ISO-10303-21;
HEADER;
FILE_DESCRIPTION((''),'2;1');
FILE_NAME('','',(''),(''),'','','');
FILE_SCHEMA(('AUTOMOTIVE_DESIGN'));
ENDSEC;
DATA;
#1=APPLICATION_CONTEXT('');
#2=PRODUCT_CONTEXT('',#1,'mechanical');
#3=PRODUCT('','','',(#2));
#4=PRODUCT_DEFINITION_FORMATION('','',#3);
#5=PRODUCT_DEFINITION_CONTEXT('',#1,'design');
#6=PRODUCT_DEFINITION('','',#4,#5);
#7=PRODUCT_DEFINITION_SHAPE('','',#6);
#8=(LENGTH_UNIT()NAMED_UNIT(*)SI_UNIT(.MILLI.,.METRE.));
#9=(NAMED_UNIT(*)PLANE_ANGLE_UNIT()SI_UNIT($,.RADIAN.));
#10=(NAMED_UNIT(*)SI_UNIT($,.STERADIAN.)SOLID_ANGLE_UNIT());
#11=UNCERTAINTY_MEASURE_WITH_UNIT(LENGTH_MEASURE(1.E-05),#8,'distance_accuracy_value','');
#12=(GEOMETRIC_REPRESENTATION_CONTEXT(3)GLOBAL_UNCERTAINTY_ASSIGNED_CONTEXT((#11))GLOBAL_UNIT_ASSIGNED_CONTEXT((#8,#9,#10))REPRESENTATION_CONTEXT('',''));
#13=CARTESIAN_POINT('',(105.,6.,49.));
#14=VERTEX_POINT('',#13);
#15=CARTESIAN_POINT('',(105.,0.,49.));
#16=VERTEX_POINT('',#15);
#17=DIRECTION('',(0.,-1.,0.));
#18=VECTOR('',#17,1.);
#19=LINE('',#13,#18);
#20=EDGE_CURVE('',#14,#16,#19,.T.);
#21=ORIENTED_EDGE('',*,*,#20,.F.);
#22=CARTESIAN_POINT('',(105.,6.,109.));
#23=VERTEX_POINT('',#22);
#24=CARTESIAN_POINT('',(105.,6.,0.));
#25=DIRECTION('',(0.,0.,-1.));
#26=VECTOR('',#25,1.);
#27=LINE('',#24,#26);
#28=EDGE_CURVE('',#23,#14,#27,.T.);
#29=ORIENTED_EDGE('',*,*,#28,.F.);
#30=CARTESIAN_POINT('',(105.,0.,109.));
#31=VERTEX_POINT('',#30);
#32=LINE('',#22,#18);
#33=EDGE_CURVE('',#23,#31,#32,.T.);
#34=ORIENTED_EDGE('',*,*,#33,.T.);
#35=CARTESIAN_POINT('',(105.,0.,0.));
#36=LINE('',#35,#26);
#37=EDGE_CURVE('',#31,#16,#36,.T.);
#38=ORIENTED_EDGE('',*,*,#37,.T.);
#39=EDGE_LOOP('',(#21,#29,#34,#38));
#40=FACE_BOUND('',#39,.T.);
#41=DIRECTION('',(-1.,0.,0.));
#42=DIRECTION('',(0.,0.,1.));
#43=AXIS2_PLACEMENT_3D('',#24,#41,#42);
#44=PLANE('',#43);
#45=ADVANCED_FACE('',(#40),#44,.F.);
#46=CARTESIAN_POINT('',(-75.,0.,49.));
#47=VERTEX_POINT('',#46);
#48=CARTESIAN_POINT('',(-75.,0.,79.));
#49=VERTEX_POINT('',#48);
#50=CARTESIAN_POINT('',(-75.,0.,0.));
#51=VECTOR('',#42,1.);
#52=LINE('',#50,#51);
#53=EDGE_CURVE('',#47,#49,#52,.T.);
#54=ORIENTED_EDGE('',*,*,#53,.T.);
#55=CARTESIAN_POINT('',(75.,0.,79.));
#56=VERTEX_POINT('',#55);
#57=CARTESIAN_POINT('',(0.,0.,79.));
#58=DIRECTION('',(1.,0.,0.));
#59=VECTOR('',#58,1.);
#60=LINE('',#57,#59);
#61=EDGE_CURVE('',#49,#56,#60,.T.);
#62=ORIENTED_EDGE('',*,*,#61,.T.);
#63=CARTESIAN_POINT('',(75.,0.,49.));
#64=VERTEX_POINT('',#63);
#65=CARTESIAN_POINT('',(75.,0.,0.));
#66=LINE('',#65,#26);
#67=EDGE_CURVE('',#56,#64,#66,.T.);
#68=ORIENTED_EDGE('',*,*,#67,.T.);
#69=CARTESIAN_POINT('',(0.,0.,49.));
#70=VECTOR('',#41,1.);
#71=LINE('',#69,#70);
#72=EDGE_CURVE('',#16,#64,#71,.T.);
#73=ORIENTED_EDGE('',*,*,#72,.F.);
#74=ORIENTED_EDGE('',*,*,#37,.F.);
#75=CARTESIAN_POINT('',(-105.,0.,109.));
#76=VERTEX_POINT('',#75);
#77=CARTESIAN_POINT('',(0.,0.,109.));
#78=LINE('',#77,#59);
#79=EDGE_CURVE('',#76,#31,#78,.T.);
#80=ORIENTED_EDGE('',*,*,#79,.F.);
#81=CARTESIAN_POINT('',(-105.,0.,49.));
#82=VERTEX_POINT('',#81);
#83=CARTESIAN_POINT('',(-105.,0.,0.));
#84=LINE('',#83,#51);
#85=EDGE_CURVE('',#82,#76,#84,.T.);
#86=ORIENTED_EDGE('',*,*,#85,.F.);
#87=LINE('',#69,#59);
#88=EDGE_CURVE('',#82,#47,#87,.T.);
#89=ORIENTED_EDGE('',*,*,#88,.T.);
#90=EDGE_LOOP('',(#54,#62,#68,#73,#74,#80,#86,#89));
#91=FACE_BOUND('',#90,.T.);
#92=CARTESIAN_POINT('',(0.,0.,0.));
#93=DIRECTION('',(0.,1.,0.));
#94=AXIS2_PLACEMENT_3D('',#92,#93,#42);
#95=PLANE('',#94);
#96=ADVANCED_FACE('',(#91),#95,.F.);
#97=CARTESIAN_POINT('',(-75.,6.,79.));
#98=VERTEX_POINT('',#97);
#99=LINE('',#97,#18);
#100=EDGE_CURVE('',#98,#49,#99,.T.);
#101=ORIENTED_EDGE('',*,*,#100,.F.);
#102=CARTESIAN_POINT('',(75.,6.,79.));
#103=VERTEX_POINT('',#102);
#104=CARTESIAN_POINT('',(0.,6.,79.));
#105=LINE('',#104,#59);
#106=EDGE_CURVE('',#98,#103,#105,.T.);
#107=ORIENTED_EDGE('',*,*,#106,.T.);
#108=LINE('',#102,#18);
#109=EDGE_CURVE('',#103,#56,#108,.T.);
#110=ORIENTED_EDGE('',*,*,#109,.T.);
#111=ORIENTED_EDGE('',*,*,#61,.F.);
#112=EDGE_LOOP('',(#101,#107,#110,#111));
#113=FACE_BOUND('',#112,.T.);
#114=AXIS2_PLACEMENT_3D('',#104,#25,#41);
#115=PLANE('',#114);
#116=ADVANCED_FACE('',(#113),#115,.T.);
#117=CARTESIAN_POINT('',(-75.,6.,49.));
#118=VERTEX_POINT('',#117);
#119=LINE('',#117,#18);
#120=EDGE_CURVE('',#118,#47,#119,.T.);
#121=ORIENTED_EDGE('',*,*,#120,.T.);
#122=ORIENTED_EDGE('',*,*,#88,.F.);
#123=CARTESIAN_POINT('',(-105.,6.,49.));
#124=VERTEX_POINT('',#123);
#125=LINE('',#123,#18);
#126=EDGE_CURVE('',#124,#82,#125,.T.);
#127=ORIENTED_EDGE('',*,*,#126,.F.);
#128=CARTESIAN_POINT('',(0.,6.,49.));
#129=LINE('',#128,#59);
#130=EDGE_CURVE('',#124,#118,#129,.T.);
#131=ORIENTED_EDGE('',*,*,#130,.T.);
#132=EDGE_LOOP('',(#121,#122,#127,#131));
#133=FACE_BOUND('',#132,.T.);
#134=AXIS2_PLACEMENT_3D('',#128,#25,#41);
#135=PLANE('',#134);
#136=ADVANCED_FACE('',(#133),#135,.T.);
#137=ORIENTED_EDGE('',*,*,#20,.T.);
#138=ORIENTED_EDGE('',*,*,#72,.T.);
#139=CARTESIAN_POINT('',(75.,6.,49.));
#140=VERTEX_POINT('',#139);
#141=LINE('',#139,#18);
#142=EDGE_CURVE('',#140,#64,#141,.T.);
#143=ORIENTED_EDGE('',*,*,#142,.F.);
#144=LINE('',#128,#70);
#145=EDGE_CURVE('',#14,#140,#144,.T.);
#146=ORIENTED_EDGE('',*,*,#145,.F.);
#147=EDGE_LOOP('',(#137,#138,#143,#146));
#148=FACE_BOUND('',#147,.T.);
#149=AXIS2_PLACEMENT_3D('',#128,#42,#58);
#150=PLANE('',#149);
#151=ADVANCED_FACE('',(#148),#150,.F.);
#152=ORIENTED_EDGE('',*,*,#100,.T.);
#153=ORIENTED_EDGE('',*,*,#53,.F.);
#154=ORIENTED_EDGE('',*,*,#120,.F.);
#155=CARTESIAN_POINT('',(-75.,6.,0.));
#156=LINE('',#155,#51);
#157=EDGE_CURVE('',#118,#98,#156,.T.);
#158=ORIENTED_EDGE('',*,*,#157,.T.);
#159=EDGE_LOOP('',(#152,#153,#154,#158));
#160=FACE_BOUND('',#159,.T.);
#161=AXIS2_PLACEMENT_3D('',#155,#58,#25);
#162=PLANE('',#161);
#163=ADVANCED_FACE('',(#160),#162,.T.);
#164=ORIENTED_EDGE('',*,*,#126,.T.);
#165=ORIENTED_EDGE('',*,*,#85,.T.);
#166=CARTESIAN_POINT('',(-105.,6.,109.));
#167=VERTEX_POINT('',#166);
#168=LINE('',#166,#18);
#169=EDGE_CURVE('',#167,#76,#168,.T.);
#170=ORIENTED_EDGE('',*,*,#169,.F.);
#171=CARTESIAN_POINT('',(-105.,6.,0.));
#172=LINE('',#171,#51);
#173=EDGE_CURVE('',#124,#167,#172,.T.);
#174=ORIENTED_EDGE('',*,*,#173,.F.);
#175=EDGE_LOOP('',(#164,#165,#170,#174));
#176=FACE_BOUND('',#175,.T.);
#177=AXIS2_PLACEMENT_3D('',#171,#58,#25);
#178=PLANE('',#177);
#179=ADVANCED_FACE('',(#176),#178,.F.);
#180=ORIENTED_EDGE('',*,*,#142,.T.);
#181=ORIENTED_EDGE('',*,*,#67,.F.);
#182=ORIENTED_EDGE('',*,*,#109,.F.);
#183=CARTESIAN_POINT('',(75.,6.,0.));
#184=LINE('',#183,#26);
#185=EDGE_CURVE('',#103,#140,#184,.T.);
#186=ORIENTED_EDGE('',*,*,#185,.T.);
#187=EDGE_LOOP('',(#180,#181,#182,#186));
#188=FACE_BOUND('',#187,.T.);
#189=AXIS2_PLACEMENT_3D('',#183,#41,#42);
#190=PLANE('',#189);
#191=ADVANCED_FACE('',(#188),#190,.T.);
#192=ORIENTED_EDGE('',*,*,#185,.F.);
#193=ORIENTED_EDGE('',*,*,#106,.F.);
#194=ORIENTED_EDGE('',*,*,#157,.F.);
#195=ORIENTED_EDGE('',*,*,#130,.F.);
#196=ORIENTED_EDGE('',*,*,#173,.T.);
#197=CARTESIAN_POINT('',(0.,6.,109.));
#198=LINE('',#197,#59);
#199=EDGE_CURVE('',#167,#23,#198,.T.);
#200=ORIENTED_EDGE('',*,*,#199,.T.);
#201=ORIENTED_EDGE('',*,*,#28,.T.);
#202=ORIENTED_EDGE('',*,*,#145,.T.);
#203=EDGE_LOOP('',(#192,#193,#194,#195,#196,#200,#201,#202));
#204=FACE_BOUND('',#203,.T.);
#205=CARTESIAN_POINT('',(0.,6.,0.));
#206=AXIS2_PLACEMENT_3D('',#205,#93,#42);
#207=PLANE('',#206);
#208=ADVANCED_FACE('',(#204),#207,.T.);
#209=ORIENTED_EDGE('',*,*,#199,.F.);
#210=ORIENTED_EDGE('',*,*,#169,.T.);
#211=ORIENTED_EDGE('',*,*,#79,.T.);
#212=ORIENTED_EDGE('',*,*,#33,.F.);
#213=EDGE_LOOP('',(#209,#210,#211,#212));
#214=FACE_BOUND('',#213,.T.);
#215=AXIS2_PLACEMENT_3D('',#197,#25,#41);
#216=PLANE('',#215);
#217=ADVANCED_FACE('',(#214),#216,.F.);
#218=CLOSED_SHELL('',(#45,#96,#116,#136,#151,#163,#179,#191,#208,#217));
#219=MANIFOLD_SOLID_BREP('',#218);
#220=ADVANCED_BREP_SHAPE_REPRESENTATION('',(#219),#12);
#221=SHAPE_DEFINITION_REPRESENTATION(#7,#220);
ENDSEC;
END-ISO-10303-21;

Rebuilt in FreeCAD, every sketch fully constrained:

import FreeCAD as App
import Part
import Sketcher
Q = App.Units.Quantity

doc = App.newDocument("Part")
body = doc.addObject("PartDesign::Body", "Body")

sketch1 = body.newObject("Sketcher::SketchObject", "Sketch")
sketch1.AttachmentSupport = (doc.getObject("XZ_Plane"), [""])
sketch1.MapMode = "FlatFace"
sketch1.addGeometry(Part.LineSegment(App.Vector(75, 49, 0), App.Vector(75, 79, 0)), False)
sketch1.addGeometry(Part.LineSegment(App.Vector(75, 79, 0), App.Vector(-75, 79, 0)), False)
sketch1.addGeometry(Part.LineSegment(App.Vector(-75, 79, 0), App.Vector(-75, 49, 0)), False)
sketch1.addGeometry(Part.LineSegment(App.Vector(-75, 49, 0), App.Vector(-105, 49, 0)), False)
sketch1.addGeometry(Part.LineSegment(App.Vector(-105, 49, 0), App.Vector(-105, 109, 0)), False)
sketch1.addGeometry(Part.LineSegment(App.Vector(-105, 109, 0), App.Vector(105, 109, 0)), False)
sketch1.addGeometry(Part.LineSegment(App.Vector(105, 109, 0), App.Vector(105, 49, 0)), False)
sketch1.addGeometry(Part.LineSegment(App.Vector(105, 49, 0), App.Vector(75, 49, 0)), False)
sketch1.addConstraint(Sketcher.Constraint("Coincident", 0, 2, 1, 1))
sketch1.addConstraint(Sketcher.Constraint("Coincident", 1, 2, 2, 1))
sketch1.addConstraint(Sketcher.Constraint("Coincident", 2, 2, 3, 1))
sketch1.addConstraint(Sketcher.Constraint("Coincident", 3, 2, 4, 1))
sketch1.addConstraint(Sketcher.Constraint("Coincident", 4, 2, 5, 1))
sketch1.addConstraint(Sketcher.Constraint("Coincident", 5, 2, 6, 1))
sketch1.addConstraint(Sketcher.Constraint("Coincident", 6, 2, 7, 1))
sketch1.addConstraint(Sketcher.Constraint("Coincident", 7, 2, 0, 1))
sketch1.addConstraint(Sketcher.Constraint("Vertical", 0))
sketch1.addConstraint(Sketcher.Constraint("Horizontal", 1))
sketch1.addConstraint(Sketcher.Constraint("Vertical", 2))
sketch1.addConstraint(Sketcher.Constraint("Horizontal", 3))
sketch1.addConstraint(Sketcher.Constraint("Vertical", 4))
sketch1.addConstraint(Sketcher.Constraint("Horizontal", 5))
sketch1.addConstraint(Sketcher.Constraint("Vertical", 6))
sketch1.addConstraint(Sketcher.Constraint("Horizontal", 7))
sketch1.addConstraint(Sketcher.Constraint("Symmetric", 3, 2, 6, 2, -2))
sketch1.addConstraint(Sketcher.Constraint("Equal", 3, 7))
sketch1.addConstraint(Sketcher.Constraint("Equal", 7, 0))
sketch1.addConstraint(Sketcher.Constraint("DistanceX", 1, 2, 1, 1, Q("150 mm")))
sketch1.addConstraint(Sketcher.Constraint("DistanceX", 3, 2, 3, 1, Q("30 mm")))
sketch1.addConstraint(Sketcher.Constraint("DistanceY", 4, 1, 4, 2, Q("60 mm")))
sketch1.addConstraint(Sketcher.Constraint("DistanceY", -1, 1, 0, 2, Q("79 mm")))
pad1 = body.newObject("PartDesign::Pad", "Pad")
pad1.Profile = sketch1
pad1.Length = 6
pad1.Reversed = True

doc.recompute()
